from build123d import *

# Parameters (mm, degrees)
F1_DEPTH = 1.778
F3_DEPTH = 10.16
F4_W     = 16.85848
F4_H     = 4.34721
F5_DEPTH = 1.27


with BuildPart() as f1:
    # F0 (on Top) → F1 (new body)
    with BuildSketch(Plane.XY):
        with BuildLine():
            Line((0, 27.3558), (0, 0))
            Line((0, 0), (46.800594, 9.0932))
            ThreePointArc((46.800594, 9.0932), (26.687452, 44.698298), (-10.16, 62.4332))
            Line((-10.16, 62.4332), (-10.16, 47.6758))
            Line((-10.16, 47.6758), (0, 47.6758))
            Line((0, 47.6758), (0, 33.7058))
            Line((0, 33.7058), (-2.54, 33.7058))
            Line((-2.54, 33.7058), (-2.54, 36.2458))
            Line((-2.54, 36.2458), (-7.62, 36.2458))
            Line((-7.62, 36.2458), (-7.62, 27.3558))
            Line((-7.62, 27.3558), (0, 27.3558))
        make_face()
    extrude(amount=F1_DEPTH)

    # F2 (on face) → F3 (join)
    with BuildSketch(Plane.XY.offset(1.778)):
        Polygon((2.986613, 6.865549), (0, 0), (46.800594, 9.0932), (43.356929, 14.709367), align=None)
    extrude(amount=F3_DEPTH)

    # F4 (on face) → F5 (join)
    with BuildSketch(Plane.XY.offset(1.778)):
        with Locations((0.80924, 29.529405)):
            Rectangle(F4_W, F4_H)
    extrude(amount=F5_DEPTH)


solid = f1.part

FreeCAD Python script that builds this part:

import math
import FreeCAD as App
import Part
import Sketcher
from FreeCAD import Vector
Q = App.Units.Quantity


def add_polygon(sketch, points):
    """Adds a closed chain of lines whose ends are joined by coincident constraints."""
    first, n = sketch.GeometryCount, len(points)
    for a, b in zip(points, points[1:] + points[:1]):
        sketch.addGeometry(Part.LineSegment(App.Vector(*a, 0), App.Vector(*b, 0)), False)
    for i in range(n):
        sketch.addConstraint(Sketcher.Constraint("Coincident", first + i, 2, first + (i + 1) % n, 1))

doc = App.newDocument("Part")
params = doc.addObject("Spreadsheet::Sheet", "Params")
for row, (alias, value) in enumerate([
    ("sketch1_width", "0.4 in"),
    ("sketch1_width2", "0.1 in"),
    ("sketch1_width3", "0.2 in"),
    ("sketch1_height", "0.55 in"),
    ("sketch1_height2", "0.35 in"),
    ("pad1_length", "0.07 in"),
    ("sketch2_length", "1.877 in"),
    ("pad2_length", "0.4 in"),
    ("pad3_length", "0.05 in"),
], start=1):
    params.set(f"A{row}", alias)
    params.set(f"B{row}", "=" + value)
    params.setAlias(f"B{row}", alias)

body = doc.addObject("PartDesign::Body", "Body")

sketch1 = body.newObject("Sketcher::SketchObject", "Sketch")
sketch1.AttachmentSupport = (doc.getObject("XY_Plane"), [""])
sketch1.MapMode = "FlatFace"
sketch1.addGeometry([
    Part.LineSegment(Vector(0, 27.4, 0), Vector(0, 0, 0)),
    Part.LineSegment(Vector(0, 0, 0), Vector(46.8, 9.1, 0)),
    Part.ArcOfCircle(Part.Circle(Vector(-20, -5.2, 0), Vector(0, 0, 1), 68.3), math.radians(12), math.radians(82)),
    Part.LineSegment(Vector(-10.2, 62.4, 0), Vector(-10.2, 47.7, 0)),
    Part.LineSegment(Vector(-10.2, 47.7, 0), Vector(0, 47.7, 0)),
    Part.LineSegment(Vector(0, 47.7, 0), Vector(0, 33.7, 0)),
    Part.LineSegment(Vector(0, 33.7, 0), Vector(-2.5, 33.7, 0)),
    Part.LineSegment(Vector(-2.5, 33.7, 0), Vector(-2.5, 36.2, 0)),
    Part.LineSegment(Vector(-2.5, 36.2, 0), Vector(-7.6, 36.2, 0)),
    Part.LineSegment(Vector(-7.6, 36.2, 0), Vector(-7.6, 27.4, 0)),
    Part.LineSegment(Vector(-7.6, 27.4, 0), Vector(0, 27.4, 0)),
], False)
sketch1.addConstraint([
    Sketcher.Constraint("Coincident", 0, 2, 1, 1),
    Sketcher.Constraint("Coincident", 1, 2, 2, 1),
    Sketcher.Constraint("Coincident", 2, 2, 3, 1),
    Sketcher.Constraint("Coincident", 3, 2, 4, 1),
    Sketcher.Constraint("Coincident", 4, 2, 5, 1),
    Sketcher.Constraint("Coincident", 5, 2, 6, 1),
    Sketcher.Constraint("Coincident", 6, 2, 7, 1),
    Sketcher.Constraint("Coincident", 7, 2, 8, 1),
    Sketcher.Constraint("Coincident", 8, 2, 9, 1),
    Sketcher.Constraint("Coincident", 9, 2, 10, 1),
    Sketcher.Constraint("Coincident", 10, 2, 0, 1),
    Sketcher.Constraint("Vertical", 0),
    Sketcher.Constraint("Vertical", 3),
    Sketcher.Constraint("Horizontal", 4),
    Sketcher.Constraint("Vertical", 5),
    Sketcher.Constraint("Horizontal", 6),
    Sketcher.Constraint("Vertical", 7),
    Sketcher.Constraint("Horizontal", 8),
    Sketcher.Constraint("Vertical", 9),
    Sketcher.Constraint("Horizontal", 10),
    Sketcher.Constraint("Coincident", 0, 2, -1, 1),
    Sketcher.Constraint("PointOnObject", 4, 2, -2),
    Sketcher.Constraint("Equal", 6, 7),
    Sketcher.Constraint("DistanceX", 4, 1, 4, 2, Q("0.4 in")),
    Sketcher.Constraint("DistanceX", 6, 2, 6, 1, Q("0.1 in")),
    Sketcher.Constraint("DistanceX", 8, 2, 8, 1, Q("0.2 in")),
    Sketcher.Constraint("DistanceY", 5, 2, 5, 1, Q("0.55 in")),
    Sketcher.Constraint("DistanceY", 9, 2, 9, 1, Q("0.35 in")),
    Sketcher.Constraint("DistanceY", 1, 2, 2, 2, Q("2.1 in")),
    Sketcher.Constraint("DistanceY", 0, 2, 0, 1, Q("1.077 in")),
    Sketcher.Constraint("DistanceY", 3, 2, 3, 1, Q("0.581 in")),
    Sketcher.Constraint("Distance", 1, Q("1.877 in")),
    Sketcher.Constraint("Radius", 2, Q("68.30503 mm")),
])
sketch1.setExpression("Constraints[23]", "Params.sketch1_width")
sketch1.setExpression("Constraints[24]", "Params.sketch1_width2")
sketch1.setExpression("Constraints[25]", "Params.sketch1_width3")
sketch1.setExpression("Constraints[26]", "Params.sketch1_height")
sketch1.setExpression("Constraints[27]", "Params.sketch1_height2")
pad1 = body.newObject("PartDesign::Pad", "Pad")
pad1.Profile = sketch1
pad1.setExpression("Length", "Params.pad1_length")

sketch2 = body.newObject("Sketcher::SketchObject", "Sketch001")
sketch2.AttachmentSupport = (doc.getObject("XY_Plane"), [""])
sketch2.MapMode = "FlatFace"
sketch2.AttachmentOffset = App.Placement(Vector(0, 0, 0.07 * 25.4), App.Rotation())
add_polygon(sketch2, [(3, 7), (0, 0), (47, 9), (43, 15)])
sketch2.addConstraint([
    Sketcher.Constraint("Coincident", 0, 2, -1, 1),
    Sketcher.Constraint("Parallel", 1, 3),
    Sketcher.Constraint("Distance", 1, Q("1.877 in")),
    Sketcher.Constraint("DistanceY", -1, 1, 1, 2, Q("0.358 in")),
    Sketcher.Constraint("Distance", 0, Q("7.48703 mm")),
    Sketcher.Constraint("Distance", 2, Q("6.58788 mm")),
    Sketcher.Constraint("Distance", 3, Q("41.125271 mm")),
])
sketch2.setExpression("Constraints[6]", "Params.sketch2_length")
pad2 = body.newObject("PartDesign::Pad", "Pad001")
pad2.Profile = sketch2
pad2.setExpression("Length", "Params.pad2_length")

sketch3 = body.newObject("Sketcher::SketchObject", "Sketch002")
sketch3.AttachmentSupport = (doc.getObject("XY_Plane"), [""])
sketch3.MapMode = "FlatFace"
sketch3.AttachmentOffset = App.Placement(Vector(0, 0, 0.07 * 25.4), App.Rotation())
add_polygon(sketch3, [(-7.6, 31.7), (-7.6, 27.4), (9.2, 27.4), (9.2, 31.7)])
sketch3.addConstraint([
    Sketcher.Constraint("Vertical", 0),
    Sketcher.Constraint("Horizontal", 1),
    Sketcher.Constraint("Vertical", 2),
    Sketcher.Constraint("Horizontal", 3),
    Sketcher.Constraint("DistanceX", 0, 2, -1, 1, Q("0.3 in")),
    Sketcher.Constraint("DistanceY", -1, 1, 0, 2, Q("1.077 in")),
    Sketcher.Constraint("DistanceX", 1, 1, 1, 2, Q("16.85848 mm")),
    Sketcher.Constraint("DistanceY", 0, 2, 0, 1, Q("4.34721 mm")),
])
pad3 = body.newObject("PartDesign::Pad", "Pad002")
pad3.Profile = sketch3
pad3.setExpression("Length", "Params.pad3_length")

doc.recompute()
